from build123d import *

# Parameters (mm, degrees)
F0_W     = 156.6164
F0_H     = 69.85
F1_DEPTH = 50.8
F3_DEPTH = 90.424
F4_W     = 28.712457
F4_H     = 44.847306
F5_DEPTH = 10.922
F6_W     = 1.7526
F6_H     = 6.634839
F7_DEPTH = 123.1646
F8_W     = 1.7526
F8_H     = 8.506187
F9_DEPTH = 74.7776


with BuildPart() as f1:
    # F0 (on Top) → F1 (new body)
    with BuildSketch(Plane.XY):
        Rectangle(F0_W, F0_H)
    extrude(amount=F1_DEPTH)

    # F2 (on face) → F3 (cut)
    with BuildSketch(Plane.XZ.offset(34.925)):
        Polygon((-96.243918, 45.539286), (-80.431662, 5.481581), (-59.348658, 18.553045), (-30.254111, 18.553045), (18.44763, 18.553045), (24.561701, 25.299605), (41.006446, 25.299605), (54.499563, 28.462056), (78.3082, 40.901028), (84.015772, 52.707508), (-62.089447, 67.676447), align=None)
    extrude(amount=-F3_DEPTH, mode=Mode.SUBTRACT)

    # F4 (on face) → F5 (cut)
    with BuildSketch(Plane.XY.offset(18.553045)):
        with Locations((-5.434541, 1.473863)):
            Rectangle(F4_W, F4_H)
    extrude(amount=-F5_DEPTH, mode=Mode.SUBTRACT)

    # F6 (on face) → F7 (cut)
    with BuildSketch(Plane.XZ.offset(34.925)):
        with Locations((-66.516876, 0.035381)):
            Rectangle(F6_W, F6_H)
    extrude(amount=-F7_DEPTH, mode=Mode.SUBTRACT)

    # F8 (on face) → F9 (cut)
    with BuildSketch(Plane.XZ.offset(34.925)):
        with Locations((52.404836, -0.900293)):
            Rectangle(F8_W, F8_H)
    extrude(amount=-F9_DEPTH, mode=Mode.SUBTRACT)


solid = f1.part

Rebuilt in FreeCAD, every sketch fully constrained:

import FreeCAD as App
import Part
import Sketcher
Q = App.Units.Quantity

doc = App.newDocument("Part")
body = doc.addObject("PartDesign::Body", "Body")

sketch1 = body.newObject("Sketcher::SketchObject", "Sketch")
sketch1.AttachmentSupport = (doc.getObject("XY_Plane"), [""])
sketch1.MapMode = "FlatFace"
sketch1.addGeometry([
    Part.LineSegment(App.Vector(-78, 35, 0), App.Vector(-78, -35, 0)),
    Part.LineSegment(App.Vector(-78, -35, 0), App.Vector(78, -35, 0)),
    Part.LineSegment(App.Vector(78, -35, 0), App.Vector(78, 35, 0)),
    Part.LineSegment(App.Vector(78, 35, 0), App.Vector(-78, 35, 0)),
], False)
sketch1.addConstraint([
    Sketcher.Constraint("Coincident", 0, 2, 1, 1),
    Sketcher.Constraint("Coincident", 1, 2, 2, 1),
    Sketcher.Constraint("Coincident", 2, 2, 3, 1),
    Sketcher.Constraint("Coincident", 3, 2, 0, 1),
    Sketcher.Constraint("Vertical", 0),
    Sketcher.Constraint("Horizontal", 1),
    Sketcher.Constraint("Vertical", 2),
    Sketcher.Constraint("Horizontal", 3),
    Sketcher.Constraint("Symmetric", 0, 2, 2, 2, -1, 1),
    Sketcher.Constraint("DistanceY", 0, 2, 0, 1, Q("2.75 in")),
    Sketcher.Constraint("DistanceX", 1, 1, 1, 2, Q("6.166 in")),
])
pad1 = body.newObject("PartDesign::Pad", "Pad")
pad1.Profile = sketch1
pad1.Length = Q("2 in")

sketch2 = body.newObject("Sketcher::SketchObject", "Sketch001")
sketch2.AttachmentSupport = (doc.getObject("XZ_Plane"), [""])
sketch2.MapMode = "FlatFace"
sketch2.AttachmentOffset = App.Placement(App.Vector(0, 0, 1.375 * 25.4), App.Rotation())
sketch2.addGeometry([
    Part.LineSegment(App.Vector(-96, 46, 0), App.Vector(-80, 5, 0)),
    Part.LineSegment(App.Vector(-80, 5, 0), App.Vector(-59, 19, 0)),
    Part.LineSegment(App.Vector(-59, 19, 0), App.Vector(18, 19, 0)),
    Part.LineSegment(App.Vector(18, 19, 0), App.Vector(25, 25, 0)),
    Part.LineSegment(App.Vector(25, 25, 0), App.Vector(41, 25, 0)),
    Part.LineSegment(App.Vector(41, 25, 0), App.Vector(54, 28, 0)),
    Part.LineSegment(App.Vector(54, 28, 0), App.Vector(78, 41, 0)),
    Part.LineSegment(App.Vector(78, 41, 0), App.Vector(84, 53, 0)),
    Part.LineSegment(App.Vector(84, 53, 0), App.Vector(-62, 68, 0)),
    Part.LineSegment(App.Vector(-62, 68, 0), App.Vector(-96, 46, 0)),
], False)
sketch2.addConstraint([
    Sketcher.Constraint("Coincident", 0, 2, 1, 1),
    Sketcher.Constraint("Coincident", 1, 2, 2, 1),
    Sketcher.Constraint("Coincident", 2, 2, 3, 1),
    Sketcher.Constraint("Coincident", 3, 2, 4, 1),
    Sketcher.Constraint("Coincident", 4, 2, 5, 1),
    Sketcher.Constraint("Coincident", 5, 2, 6, 1),
    Sketcher.Constraint("Coincident", 6, 2, 7, 1),
    Sketcher.Constraint("Coincident", 7, 2, 8, 1),
    Sketcher.Constraint("Coincident", 8, 2, 9, 1),
    Sketcher.Constraint("Coincident", 9, 2, 0, 1),
    Sketcher.Constraint("Horizontal", 2),
    Sketcher.Constraint("Horizontal", 4),
    Sketcher.Constraint("DistanceX", -1, 1, 6, 2, Q("3.083 in")),
    Sketcher.Constraint("DistanceX", 2, 1, 2, 2, Q("77.796288 mm")),
    Sketcher.Constraint("DistanceX", -1, 1, 3, 2, Q("24.561701 mm")),
    Sketcher.Constraint("Distance", 3, Q("9.10483 mm")),
    Sketcher.Constraint("Distance", 7, Q("13.113708 mm")),
    Sketcher.Constraint("DistanceX", 4, 1, 4, 2, Q("16.444745 mm")),
    Sketcher.Constraint("DistanceY", -1, 1, 0, 2, Q("5.481581 mm")),
    Sketcher.Constraint("DistanceX", -1, 1, 2, 2, Q("18.44763 mm")),
    Sketcher.Constraint("DistanceX", -1, 1, 7, 2, Q("84.015772 mm")),
    Sketcher.Constraint("DistanceX", 0, 2, 4, 2, Q("121.438108 mm")),
    Sketcher.Constraint("DistanceY", 4, 2, 5, 2, Q("3.162451 mm")),
    Sketcher.Constraint("DistanceX", 1, 2, 5, 2, Q("113.848221 mm")),
    Sketcher.Constraint("DistanceY", 5, 2, 6, 2, Q("12.438972 mm")),
    Sketcher.Constraint("DistanceX", 8, 2, 1, 2, Q("2.740789 mm")),
    Sketcher.Constraint("DistanceY", 3, 2, 8, 2, Q("42.376842 mm")),
    Sketcher.Constraint("DistanceX", 9, 2, 8, 2, Q("34.154471 mm")),
    Sketcher.Constraint("DistanceY", 9, 2, 8, 2, Q("22.137161 mm")),
    Sketcher.Constraint("Distance", 0, Q("43.065615 mm")),
])
pocket1 = body.newObject("PartDesign::Pocket", "Pocket")
pocket1.Profile = sketch2
pocket1.Length = Q("3.56 in")

sketch3 = body.newObject("Sketcher::SketchObject", "Sketch002")
sketch3.AttachmentSupport = (doc.getObject("XY_Plane"), [""])
sketch3.MapMode = "FlatFace"
sketch3.AttachmentOffset = App.Placement(App.Vector(0, 0, 18.553045), App.Rotation())
sketch3.addGeometry([
    Part.LineSegment(App.Vector(-20, 24, 0), App.Vector(-20, -21, 0)),
    Part.LineSegment(App.Vector(-20, -21, 0), App.Vector(9, -21, 0)),
    Part.LineSegment(App.Vector(9, -21, 0), App.Vector(9, 24, 0)),
    Part.LineSegment(App.Vector(9, 24, 0), App.Vector(-20, 24, 0)),
], False)
sketch3.addConstraint([
    Sketcher.Constraint("Coincident", 0, 2, 1, 1),
    Sketcher.Constraint("Coincident", 1, 2, 2, 1),
    Sketcher.Constraint("Coincident", 2, 2, 3, 1),
    Sketcher.Constraint("Coincident", 3, 2, 0, 1),
    Sketcher.Constraint("Vertical", 0),
    Sketcher.Constraint("Horizontal", 1),
    Sketcher.Constraint("Vertical", 2),
    Sketcher.Constraint("Horizontal", 3),
    Sketcher.Constraint("DistanceX", 1, 1, 1, 2, Q("28.712457 mm")),
    Sketcher.Constraint("DistanceY", 0, 2, 0, 1, Q("44.847306 mm")),
    Sketcher.Constraint("DistanceX", 0, 2, -1, 1, Q("19.790769 mm")),
    Sketcher.Constraint("DistanceY", 0, 2, -1, 1, Q("20.94979 mm")),
])
pocket2 = body.newObject("PartDesign::Pocket", "Pocket001")
pocket2.Profile = sketch3
pocket2.Length = Q("0.43 in")

sketch4 = body.newObject("Sketcher::SketchObject", "Sketch003")
sketch4.AttachmentSupport = (doc.getObject("XZ_Plane"), [""])
sketch4.MapMode = "FlatFace"
sketch4.AttachmentOffset = App.Placement(App.Vector(0, 0, 1.375 * 25.4), App.Rotation())
sketch4.addGeometry([
    Part.LineSegment(App.Vector(-67.4, 3.4, 0), App.Vector(-67.4, -3.3, 0)),
    Part.LineSegment(App.Vector(-67.4, -3.3, 0), App.Vector(-65.6, -3.3, 0)),
    Part.LineSegment(App.Vector(-65.6, -3.3, 0), App.Vector(-65.6, 3.4, 0)),
    Part.LineSegment(App.Vector(-65.6, 3.4, 0), App.Vector(-67.4, 3.4, 0)),
], False)
sketch4.addConstraint([
    Sketcher.Constraint("Coincident", 0, 2, 1, 1),
    Sketcher.Constraint("Coincident", 1, 2, 2, 1),
    Sketcher.Constraint("Coincident", 2, 2, 3, 1),
    Sketcher.Constraint("Coincident", 3, 2, 0, 1),
    Sketcher.Constraint("Vertical", 0),
    Sketcher.Constraint("Horizontal", 1),
    Sketcher.Constraint("Vertical", 2),
    Sketcher.Constraint("Horizontal", 3),
    Sketcher.Constraint("DistanceX", 1, 1, 1, 2, Q("0.069 in")),
    Sketcher.Constraint("DistanceY", -1, 1, 2, 2, Q("0.132 in")),
    Sketcher.Constraint("DistanceY", 0, 2, 0, 1, Q("6.634839 mm")),
    Sketcher.Constraint("DistanceX", 0, 2, -1, 1, Q("67.393176 mm")),
])
pocket3 = body.newObject("PartDesign::Pocket", "Pocket002")
pocket3.Profile = sketch4
pocket3.Length = Q("4.849 in")

sketch5 = body.newObject("Sketcher::SketchObject", "Sketch004")
sketch5.AttachmentSupport = (doc.getObject("XZ_Plane"), [""])
sketch5.MapMode = "FlatFace"
sketch5.AttachmentOffset = App.Placement(App.Vector(0, 0, 1.375 * 25.4), App.Rotation())
sketch5.addGeometry([
    Part.LineSegment(App.Vector(51.5, 3.4, 0), App.Vector(51.5, -5.2, 0)),
    Part.LineSegment(App.Vector(51.5, -5.2, 0), App.Vector(53.3, -5.2, 0)),
    Part.LineSegment(App.Vector(53.3, -5.2, 0), App.Vector(53.3, 3.4, 0)),
    Part.LineSegment(App.Vector(53.3, 3.4, 0), App.Vector(51.5, 3.4, 0)),
], False)
sketch5.addConstraint([
    Sketcher.Constraint("Coincident", 0, 2, 1, 1),
    Sketcher.Constraint("Coincident", 1, 2, 2, 1),
    Sketcher.Constraint("Coincident", 2, 2, 3, 1),
    Sketcher.Constraint("Coincident", 3, 2, 0, 1),
    Sketcher.Constraint("Vertical", 0),
    Sketcher.Constraint("Horizontal", 1),
    Sketcher.Constraint("Vertical", 2),
    Sketcher.Constraint("Horizontal", 3),
    Sketcher.Constraint("DistanceX", 1, 1, 1, 2, Q("0.069 in")),
    Sketcher.Constraint("DistanceY", -1, 1, 2, 2, Q("0.132 in")),
    Sketcher.Constraint("DistanceY", 0, 2, 0, 1, Q("8.506187 mm")),
    Sketcher.Constraint("DistanceX", -1, 1, 0, 2, Q("51.528536 mm")),
])
pocket4 = body.newObject("PartDesign::Pocket", "Pocket003")
pocket4.Profile = sketch5
pocket4.Length = Q("2.944 in")

doc.recompute()
